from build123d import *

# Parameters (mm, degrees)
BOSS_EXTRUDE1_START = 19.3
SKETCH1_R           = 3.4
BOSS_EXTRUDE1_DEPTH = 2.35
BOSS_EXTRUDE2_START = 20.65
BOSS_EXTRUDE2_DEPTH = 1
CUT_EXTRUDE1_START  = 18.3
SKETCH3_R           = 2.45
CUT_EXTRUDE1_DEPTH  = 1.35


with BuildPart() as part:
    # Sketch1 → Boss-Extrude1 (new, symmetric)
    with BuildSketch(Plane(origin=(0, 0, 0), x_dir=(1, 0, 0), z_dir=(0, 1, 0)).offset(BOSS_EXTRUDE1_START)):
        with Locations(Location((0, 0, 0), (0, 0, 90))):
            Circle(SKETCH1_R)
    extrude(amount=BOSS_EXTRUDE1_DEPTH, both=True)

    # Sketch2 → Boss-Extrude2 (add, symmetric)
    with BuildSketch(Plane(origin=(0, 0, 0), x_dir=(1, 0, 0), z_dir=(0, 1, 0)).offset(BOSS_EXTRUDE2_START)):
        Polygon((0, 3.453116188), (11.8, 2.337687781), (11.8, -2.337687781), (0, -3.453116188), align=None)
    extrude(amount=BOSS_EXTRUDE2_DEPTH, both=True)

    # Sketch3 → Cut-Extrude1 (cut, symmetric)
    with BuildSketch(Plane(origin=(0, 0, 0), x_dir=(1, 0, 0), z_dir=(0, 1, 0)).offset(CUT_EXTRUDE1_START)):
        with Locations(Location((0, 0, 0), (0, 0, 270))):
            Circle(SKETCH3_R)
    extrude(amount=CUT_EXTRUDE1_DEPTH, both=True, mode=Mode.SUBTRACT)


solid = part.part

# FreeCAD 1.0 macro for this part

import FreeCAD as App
import Part
import Sketcher
from FreeCAD import Vector
Q = App.Units.Quantity


def add_polygon(sketch, points):
    """Adds a closed chain of lines whose ends are joined by coincident constraints."""
    first, n = sketch.GeometryCount, len(points)
    for a, b in zip(points, points[1:] + points[:1]):
        sketch.addGeometry(Part.LineSegment(App.Vector(*a, 0), App.Vector(*b, 0)), False)
    for i in range(n):
        sketch.addConstraint(Sketcher.Constraint("Coincident", first + i, 2, first + (i + 1) % n, 1))

doc = App.newDocument("Part")
body = doc.addObject("PartDesign::Body", "Body")

sketch1 = body.newObject("Sketcher::SketchObject", "Sketch")
sketch1.AttachmentSupport = (doc.getObject("XZ_Plane"), [""])
sketch1.MapMode = "FlatFace"
sketch1.AttachmentOffset = App.Placement(Vector(0, 0, -19.3), App.Rotation())
sketch1.addGeometry(Part.Circle(Vector(0, 0, 0), Vector(0, 0, 1), 3.4), False)
sketch1.addConstraint([
    Sketcher.Constraint("Coincident", 0, 3, -1, 1),
    Sketcher.Constraint("Diameter", 0, Q("6.8 mm")),
])
pad1 = body.newObject("PartDesign::Pad", "Pad")
pad1.Profile = sketch1
pad1.Length = 4.7
pad1.Midplane = True

sketch2 = body.newObject("Sketcher::SketchObject", "Sketch001")
sketch2.AttachmentSupport = (doc.getObject("XZ_Plane"), [""])
sketch2.MapMode = "FlatFace"
sketch2.AttachmentOffset = App.Placement(Vector(0, 0, -20.65), App.Rotation())
add_polygon(sketch2, [(11.8, -2.337688), (0, -3.453116), (0, 3.453116), (11.8, 2.337688)])
sketch2.addConstraint([
    Sketcher.Constraint("Vertical", 1),
    Sketcher.Constraint("Vertical", 3),
    Sketcher.Constraint("Symmetric", 0, 2, 1, 2, -1, 1),
    Sketcher.Constraint("Equal", 0, 2),
    Sketcher.Constraint("Angle", 0, Q("-174.6 deg")),
    Sketcher.Constraint("DistanceX", -1, 1, 2, 2, Q("11.8 mm")),
    Sketcher.Constraint("DistanceY", 1, 1, 1, 2, Q("6.906232 mm")),
])
pad2 = body.newObject("PartDesign::Pad", "Pad001")
pad2.Profile = sketch2
pad2.Length = 2
pad2.Midplane = True

sketch3 = body.newObject("Sketcher::SketchObject", "Sketch002")
sketch3.AttachmentSupport = (doc.getObject("XZ_Plane"), [""])
sketch3.MapMode = "FlatFace"
sketch3.AttachmentOffset = App.Placement(Vector(0, 0, -18.3), App.Rotation())
sketch3.addGeometry(Part.Circle(Vector(0, 0, 0), Vector(0, 0, 1), 2.45), False)
sketch3.addConstraint([
    Sketcher.Constraint("Coincident", 0, 3, -1, 1),
    Sketcher.Constraint("Diameter", 0, Q("4.9 mm")),
])
pocket1 = body.newObject("PartDesign::Pocket", "Pocket")
pocket1.Profile = sketch3
pocket1.Length = 2.7
pocket1.Midplane = True

doc.recompute()
